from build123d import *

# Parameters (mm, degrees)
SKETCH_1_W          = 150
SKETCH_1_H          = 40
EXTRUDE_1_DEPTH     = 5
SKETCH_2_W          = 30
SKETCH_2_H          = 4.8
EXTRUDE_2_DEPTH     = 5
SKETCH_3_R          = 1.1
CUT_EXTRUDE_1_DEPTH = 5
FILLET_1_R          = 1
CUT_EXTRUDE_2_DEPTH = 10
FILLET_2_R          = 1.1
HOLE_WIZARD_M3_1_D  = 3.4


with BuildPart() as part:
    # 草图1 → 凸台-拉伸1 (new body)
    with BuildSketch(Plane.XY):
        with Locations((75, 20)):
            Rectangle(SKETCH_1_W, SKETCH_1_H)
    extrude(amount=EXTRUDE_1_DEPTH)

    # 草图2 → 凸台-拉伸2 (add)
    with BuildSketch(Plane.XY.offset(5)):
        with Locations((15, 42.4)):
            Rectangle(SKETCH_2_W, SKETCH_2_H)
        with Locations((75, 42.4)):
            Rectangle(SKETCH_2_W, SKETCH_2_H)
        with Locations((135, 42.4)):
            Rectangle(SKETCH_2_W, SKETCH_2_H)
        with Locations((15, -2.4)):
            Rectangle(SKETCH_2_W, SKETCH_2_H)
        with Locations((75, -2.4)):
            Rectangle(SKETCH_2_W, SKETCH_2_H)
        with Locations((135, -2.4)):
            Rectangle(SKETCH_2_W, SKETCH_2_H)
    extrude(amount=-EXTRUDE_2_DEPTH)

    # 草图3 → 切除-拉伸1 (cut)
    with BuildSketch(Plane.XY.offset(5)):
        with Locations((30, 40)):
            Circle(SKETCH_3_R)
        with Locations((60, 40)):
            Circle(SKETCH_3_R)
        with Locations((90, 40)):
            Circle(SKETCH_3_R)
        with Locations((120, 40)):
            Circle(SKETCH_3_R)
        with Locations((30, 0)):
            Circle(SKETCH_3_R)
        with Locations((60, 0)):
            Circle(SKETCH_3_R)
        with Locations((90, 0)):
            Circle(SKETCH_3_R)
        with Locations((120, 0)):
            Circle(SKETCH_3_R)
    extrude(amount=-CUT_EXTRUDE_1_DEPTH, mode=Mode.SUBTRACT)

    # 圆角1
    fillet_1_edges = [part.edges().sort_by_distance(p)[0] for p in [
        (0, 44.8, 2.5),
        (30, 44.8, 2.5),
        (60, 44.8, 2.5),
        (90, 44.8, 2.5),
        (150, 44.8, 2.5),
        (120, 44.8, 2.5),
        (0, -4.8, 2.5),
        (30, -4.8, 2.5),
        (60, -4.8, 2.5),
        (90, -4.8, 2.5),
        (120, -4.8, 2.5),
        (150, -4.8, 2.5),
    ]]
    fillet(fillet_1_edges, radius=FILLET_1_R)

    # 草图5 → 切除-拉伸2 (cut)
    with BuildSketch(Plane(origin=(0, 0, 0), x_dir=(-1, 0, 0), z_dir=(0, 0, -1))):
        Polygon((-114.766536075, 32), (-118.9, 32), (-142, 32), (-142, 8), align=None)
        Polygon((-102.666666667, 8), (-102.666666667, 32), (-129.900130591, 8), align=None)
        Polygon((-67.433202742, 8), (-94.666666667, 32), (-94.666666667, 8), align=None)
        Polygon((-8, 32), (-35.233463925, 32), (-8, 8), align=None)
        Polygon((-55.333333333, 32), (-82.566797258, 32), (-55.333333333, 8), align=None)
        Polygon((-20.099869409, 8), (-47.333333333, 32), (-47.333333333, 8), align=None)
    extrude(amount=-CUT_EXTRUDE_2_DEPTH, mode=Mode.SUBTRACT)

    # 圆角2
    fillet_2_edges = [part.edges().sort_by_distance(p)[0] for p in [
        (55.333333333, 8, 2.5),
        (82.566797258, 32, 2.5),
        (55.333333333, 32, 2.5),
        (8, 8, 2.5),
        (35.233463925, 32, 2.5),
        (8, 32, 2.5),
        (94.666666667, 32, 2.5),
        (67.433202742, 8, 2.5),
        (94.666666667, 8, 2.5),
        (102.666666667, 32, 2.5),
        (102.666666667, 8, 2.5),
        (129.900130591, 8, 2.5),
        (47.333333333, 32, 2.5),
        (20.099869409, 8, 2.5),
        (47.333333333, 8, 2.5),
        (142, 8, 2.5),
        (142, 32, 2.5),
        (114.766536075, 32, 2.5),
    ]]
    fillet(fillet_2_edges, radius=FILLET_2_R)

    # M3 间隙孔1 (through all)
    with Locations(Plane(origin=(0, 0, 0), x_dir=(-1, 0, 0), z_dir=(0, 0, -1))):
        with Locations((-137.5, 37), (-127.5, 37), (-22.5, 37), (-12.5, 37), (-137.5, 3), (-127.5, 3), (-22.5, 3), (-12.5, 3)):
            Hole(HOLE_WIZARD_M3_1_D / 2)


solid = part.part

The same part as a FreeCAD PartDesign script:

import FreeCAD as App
import Part
import Sketcher

V = App.Vector
Q = App.Units.Quantity


def edges_at(feature, points):
    """Names of the edges that pass closest to the given points."""
    edges = feature.Shape.Edges
    near = lambda p: min(range(len(edges)), key=lambda i: edges[i].distToShape(Part.Vertex(*p))[0])
    return sorted({f"Edge{near(p) + 1}" for p in points})

doc = App.newDocument("Part")
params = doc.addObject("Spreadsheet::Sheet", "Params")
for row, (alias, value) in enumerate([
    ("sketch1_width", "150 mm"),
    ("sketch1_height", "40 mm"),
    ("pad1_length", "5 mm"),
    ("sketch2_width", "30 mm"),
    ("sketch2_height", "4.8 mm"),
    ("pad2_length", "5 mm"),
    ("sketch3_diameter", "2.2 mm"),
    ("pocket1_length", "5 mm"),
    ("fillet_radius", "1 mm"),
    ("sketch4_height", "24 mm"),
    ("pocket2_length", "10 mm"),
    ("fillet2_radius", "1.1 mm"),
    ("sketch5_diameter", "3.4 mm"),
    ("hole_diameter", "3.4 mm"),
], start=1):
    params.set(f"A{row}", alias)
    params.set(f"B{row}", "=" + value)
    params.setAlias(f"B{row}", alias)

body = doc.addObject("PartDesign::Body", "Body")

# Sketch on XY plane
sketch1 = doc.addObject("Sketcher::SketchObject", "Sketch")
body.addObject(sketch1)
sketch1.AttachmentSupport = (doc.XY_Plane, [""])
sketch1.MapMode = "FlatFace"
sketch1.addGeometry([
    Part.LineSegment(V(0, 40, 0), V(0, 0, 0)),
    Part.LineSegment(V(0, 0, 0), V(150, 0, 0)),
    Part.LineSegment(V(150, 0, 0), V(150, 40, 0)),
    Part.LineSegment(V(150, 40, 0), V(0, 40, 0)),
], False)
sketch1.addConstraint([
    Sketcher.Constraint("Coincident", 0, 2, 1, 1),
    Sketcher.Constraint("Coincident", 1, 2, 2, 1),
    Sketcher.Constraint("Coincident", 2, 2, 3, 1),
    Sketcher.Constraint("Coincident", 3, 2, 0, 1),
    Sketcher.Constraint("Vertical", 0),
    Sketcher.Constraint("Horizontal", 1),
    Sketcher.Constraint("Vertical", 2),
    Sketcher.Constraint("Horizontal", 3),
    Sketcher.Constraint("Coincident", 0, 2, -1, 1),
    Sketcher.Constraint("DistanceX", 1, 1, 1, 2, Q("150 mm")),
    Sketcher.Constraint("DistanceY", 0, 2, 0, 1, Q("40 mm")),
])
sketch1.setExpression("Constraints[9]", "Params.sketch1_width")
sketch1.setExpression("Constraints[10]", "Params.sketch1_height")
pad1 = doc.addObject("PartDesign::Pad", "Pad")
body.addObject(pad1)
pad1.Profile = sketch1
pad1.setExpression("Length", "Params.pad1_length")

# Sketch on XY plane
sketch2 = doc.addObject("Sketcher::SketchObject", "Sketch001")
body.addObject(sketch2)
sketch2.AttachmentSupport = (doc.XY_Plane, [""])
sketch2.MapMode = "FlatFace"
sketch2.AttachmentOffset = App.Placement(V(0, 0, 5), App.Rotation())
sketch2.addGeometry([
    Part.LineSegment(V(0, 44.8, 0), V(0, 40, 0)),  # 0
    Part.LineSegment(V(0, 40, 0), V(30, 40, 0)),  # 1
    Part.LineSegment(V(30, 40, 0), V(30, 44.8, 0)),  # 2
    Part.LineSegment(V(30, 44.8, 0), V(0, 44.8, 0)),  # 3
    Part.LineSegment(V(60, 44.8, 0), V(60, 40, 0)),  # 4
    Part.LineSegment(V(60, 40, 0), V(90, 40, 0)),  # 5
    Part.LineSegment(V(90, 40, 0), V(90, 44.8, 0)),  # 6
    Part.LineSegment(V(90, 44.8, 0), V(60, 44.8, 0)),  # 7
    Part.LineSegment(V(120, 44.8, 0), V(120, 40, 0)),  # 8
    Part.LineSegment(V(120, 40, 0), V(150, 40, 0)),  # 9
    Part.LineSegment(V(150, 40, 0), V(150, 44.8, 0)),  # 10
    Part.LineSegment(V(150, 44.8, 0), V(120, 44.8, 0)),  # 11
    Part.LineSegment(V(0, 0, 0), V(0, -4.8, 0)),  # 12
    Part.LineSegment(V(0, -4.8, 0), V(30, -4.8, 0)),  # 13
    Part.LineSegment(V(30, -4.8, 0), V(30, 0, 0)),  # 14
    Part.LineSegment(V(30, 0, 0), V(0, 0, 0)),  # 15
    Part.LineSegment(V(60, 0, 0), V(60, -4.8, 0)),  # 16
    Part.LineSegment(V(60, -4.8, 0), V(90, -4.8, 0)),  # 17
    Part.LineSegment(V(90, -4.8, 0), V(90, 0, 0)),  # 18
    Part.LineSegment(V(90, 0, 0), V(60, 0, 0)),  # 19
    Part.LineSegment(V(120, 0, 0), V(120, -4.8, 0)),  # 20
    Part.LineSegment(V(120, -4.8, 0), V(150, -4.8, 0)),  # 21
    Part.LineSegment(V(150, -4.8, 0), V(150, 0, 0)),  # 22
    Part.LineSegment(V(150, 0, 0), V(120, 0, 0)),  # 23
], False)
sketch2.addConstraint([
    Sketcher.Constraint("Coincident", 0, 2, 1, 1),
    Sketcher.Constraint("Coincident", 1, 2, 2, 1),
    Sketcher.Constraint("Coincident", 2, 2, 3, 1),
    Sketcher.Constraint("Coincident", 3, 2, 0, 1),
    Sketcher.Constraint("Coincident", 4, 2, 5, 1),
    Sketcher.Constraint("Coincident", 5, 2, 6, 1),
    Sketcher.Constraint("Coincident", 6, 2, 7, 1),
    Sketcher.Constraint("Coincident", 7, 2, 4, 1),
    Sketcher.Constraint("Coincident", 8, 2, 9, 1),
    Sketcher.Constraint("Coincident", 9, 2, 10, 1),
    Sketcher.Constraint("Coincident", 10, 2, 11, 1),
    Sketcher.Constraint("Coincident", 11, 2, 8, 1),
    Sketcher.Constraint("Coincident", 12, 2, 13, 1),
    Sketcher.Constraint("Coincident", 13, 2, 14, 1),
    Sketcher.Constraint("Coincident", 14, 2, 15, 1),
    Sketcher.Constraint("Coincident", 15, 2, 12, 1),
    Sketcher.Constraint("Coincident", 16, 2, 17, 1),
    Sketcher.Constraint("Coincident", 17, 2, 18, 1),
    Sketcher.Constraint("Coincident", 18, 2, 19, 1),
    Sketcher.Constraint("Coincident", 19, 2, 16, 1),
    Sketcher.Constraint("Coincident", 20, 2, 21, 1),
    Sketcher.Constraint("Coincident", 21, 2, 22, 1),
    Sketcher.Constraint("Coincident", 22, 2, 23, 1),
    Sketcher.Constraint("Coincident", 23, 2, 20, 1),
    Sketcher.Constraint("Vertical", 0),
    Sketcher.Constraint("Horizontal", 1),
    Sketcher.Constraint("Vertical", 2),
    Sketcher.Constraint("Horizontal", 3),
    Sketcher.Constraint("Vertical", 4),
    Sketcher.Constraint("Horizontal", 5),
    Sketcher.Constraint("Vertical", 6),
    Sketcher.Constraint("Horizontal", 7),
    Sketcher.Constraint("Vertical", 8),
    Sketcher.Constraint("Horizontal", 9),
    Sketcher.Constraint("Vertical", 10),
    Sketcher.Constraint("Horizontal", 11),
    Sketcher.Constraint("Vertical", 12),
    Sketcher.Constraint("Horizontal", 13),
    Sketcher.Constraint("Vertical", 14),
    Sketcher.Constraint("Horizontal", 15),
    Sketcher.Constraint("Vertical", 16),
    Sketcher.Constraint("Horizontal", 17),
    Sketcher.Constraint("Vertical", 18),
    Sketcher.Constraint("Horizontal", 19),
    Sketcher.Constraint("Vertical", 20),
    Sketcher.Constraint("Horizontal", 21),
    Sketcher.Constraint("Vertical", 22),
    Sketcher.Constraint("Horizontal", 23),
    Sketcher.Constraint("Coincident", 15, 2, -1, 1),
    Sketcher.Constraint("PointOnObject", 0, 2, -2),
    Sketcher.Constraint("PointOnObject", 18, 2, -1),
    Sketcher.Constraint("PointOnObject", 22, 2, -1),
    Sketcher.Constraint("Horizontal", 1, 2, 4, 2),
    Sketcher.Constraint("Horizontal", 3, 2, 6, 2),
    Sketcher.Constraint("Horizontal", 5, 2, 8, 2),
    Sketcher.Constraint("Horizontal", 7, 2, 10, 2),
    Sketcher.Constraint("Horizontal", 13, 2, 16, 2),
    Sketcher.Constraint("Horizontal", 17, 2, 20, 2),
    Sketcher.Constraint("Vertical", 2, 2, 13, 2),
    Sketcher.Constraint("Vertical", 7, 2, 16, 2),
    Sketcher.Constraint("Vertical", 6, 2, 17, 2),
    Sketcher.Constraint("Vertical", 11, 2, 20, 2),
    Sketcher.Constraint("Vertical", 10, 2, 21, 2),
    Sketcher.Constraint("Equal", 3, 5),
    Sketcher.Constraint("Equal", 7, 9),
    Sketcher.Constraint("Equal", 10, 12),
    Sketcher.Constraint("DistanceX", 1, 1, 1, 2, Q("30 mm")),
    Sketcher.Constraint("DistanceY", 0, 2, 0, 1, Q("4.8 mm")),
    Sketcher.Constraint("DistanceY", -1, 1, 0, 2, Q("40 mm")),
    Sketcher.Constraint("DistanceX", -1, 1, 4, 2, Q("60 mm")),
    Sketcher.Constraint("DistanceX", -1, 1, 8, 2, Q("120 mm")),
])
sketch2.setExpression("Constraints[66]", "Params.sketch2_width")
sketch2.setExpression("Constraints[67]", "Params.sketch2_height")
pad2 = doc.addObject("PartDesign::Pad", "Pad001")
body.addObject(pad2)
pad2.Profile = sketch2
pad2.setExpression("Length", "Params.pad2_length")
pad2.Reversed = True

# Sketch on XY plane
sketch3 = doc.addObject("Sketcher::SketchObject", "Sketch002")
body.addObject(sketch3)
sketch3.AttachmentSupport = (doc.XY_Plane, [""])
sketch3.MapMode = "FlatFace"
sketch3.AttachmentOffset = App.Placement(V(0, 0, 5), App.Rotation())
sketch3.addGeometry([
    Part.Circle(V(30, 40, 0), V(0, 0, 1), 1.1),  # 0
    Part.Circle(V(60, 40, 0), V(0, 0, 1), 1.1),  # 1
    Part.Circle(V(90, 40, 0), V(0, 0, 1), 1.1),  # 2
    Part.Circle(V(120, 40, 0), V(0, 0, 1), 1.1),  # 3
    Part.Circle(V(30, 0, 0), V(0, 0, 1), 1.1),  # 4
    Part.Circle(V(60, 0, 0), V(0, 0, 1), 1.1),  # 5
    Part.Circle(V(90, 0, 0), V(0, 0, 1), 1.1),  # 6
    Part.Circle(V(120, 0, 0), V(0, 0, 1), 1.1),  # 7
], False)
sketch3.addConstraint([
    Sketcher.Constraint("Equal", 0, 1),
    Sketcher.Constraint("Equal", 1, 2),
    Sketcher.Constraint("Equal", 2, 3),
    Sketcher.Constraint("Equal", 3, 4),
    Sketcher.Constraint("Equal", 4, 5),
    Sketcher.Constraint("Equal", 5, 6),
    Sketcher.Constraint("Equal", 6, 7),
    Sketcher.Constraint("PointOnObject", 4, 3, -1),
    Sketcher.Constraint("PointOnObject", 5, 3, -1),
    Sketcher.Constraint("PointOnObject", 6, 3, -1),
    Sketcher.Constraint("PointOnObject", 7, 3, -1),
    Sketcher.Constraint("Horizontal", 0, 3, 1, 3),
    Sketcher.Constraint("Horizontal", 1, 3, 2, 3),
    Sketcher.Constraint("Horizontal", 2, 3, 3, 3),
    Sketcher.Constraint("Vertical", 0, 3, 4, 3),
    Sketcher.Constraint("Vertical", 1, 3, 5, 3),
    Sketcher.Constraint("Vertical", 2, 3, 6, 3),
    Sketcher.Constraint("Vertical", 3, 3, 7, 3),
    Sketcher.Constraint("Diameter", 0, Q("2.2 mm")),
    Sketcher.Constraint("DistanceX", -1, 1, 0, 3, Q("30 mm")),
    Sketcher.Constraint("DistanceY", -1, 1, 0, 3, Q("40 mm")),
    Sketcher.Constraint("DistanceX", -1, 1, 1, 3, Q("60 mm")),
    Sketcher.Constraint("DistanceX", -1, 1, 2, 3, Q("90 mm")),
    Sketcher.Constraint("DistanceX", -1, 1, 3, 3, Q("120 mm")),
])
sketch3.setExpression("Constraints[18]", "Params.sketch3_diameter")
pocket1 = doc.addObject("PartDesign::Pocket", "Pocket")
body.addObject(pocket1)
pocket1.Profile = sketch3
pocket1.setExpression("Length", "Params.pocket1_length")
doc.recompute()

fillet = doc.addObject("PartDesign::Fillet", "Fillet")
body.addObject(fillet)
fillet.Base = (pocket1, edges_at(pocket1, [
    (0, 44.8, 2.5),
    (30, 44.8, 2.5),
    (60, 44.8, 2.5),
    (90, 44.8, 2.5),
    (150, 44.8, 2.5),
    (120, 44.8, 2.5),
    (0, -4.8, 2.5),
    (30, -4.8, 2.5),
    (60, -4.8, 2.5),
    (90, -4.8, 2.5),
    (120, -4.8, 2.5),
    (150, -4.8, 2.5),
]))
fillet.setExpression("Radius", "Params.fillet_radius")

# Sketch on XY plane
sketch4 = doc.addObject("Sketcher::SketchObject", "Sketch003")
body.addObject(sketch4)
sketch4.AttachmentSupport = (doc.XY_Plane, [""])
sketch4.MapMode = "FlatFace"
sketch4.addGeometry([
    Part.LineSegment(V(114.766536, 32, 0), V(142, 32, 0)),  # 0
    Part.LineSegment(V(142, 32, 0), V(142, 8, 0)),  # 1
    Part.LineSegment(V(142, 8, 0), V(114.766536, 32, 0)),  # 2
    Part.LineSegment(V(102.666667, 8, 0), V(102.666667, 32, 0)),  # 3
    Part.LineSegment(V(102.666667, 32, 0), V(129.900131, 8, 0)),  # 4
    Part.LineSegment(V(129.900131, 8, 0), V(102.666667, 8, 0)),  # 5
    Part.LineSegment(V(67.433203, 8, 0), V(94.666667, 32, 0)),  # 6
    Part.LineSegment(V(94.666667, 32, 0), V(94.666667, 8, 0)),  # 7
    Part.LineSegment(V(94.666667, 8, 0), V(67.433203, 8, 0)),  # 8
    Part.LineSegment(V(8, 32, 0), V(35.233464, 32, 0)),  # 9
    Part.LineSegment(V(35.233464, 32, 0), V(8, 8, 0)),  # 10
    Part.LineSegment(V(8, 8, 0), V(8, 32, 0)),  # 11
    Part.LineSegment(V(55.333333, 32, 0), V(82.566797, 32, 0)),  # 12
    Part.LineSegment(V(82.566797, 32, 0), V(55.333333, 8, 0)),  # 13
    Part.LineSegment(V(55.333333, 8, 0), V(55.333333, 32, 0)),  # 14
    Part.LineSegment(V(20.099869, 8, 0), V(47.333333, 32, 0)),  # 15
    Part.LineSegment(V(47.333333, 32, 0), V(47.333333, 8, 0)),  # 16
    Part.LineSegment(V(47.333333, 8, 0), V(20.099869, 8, 0)),  # 17
], False)
sketch4.addConstraint([
    Sketcher.Constraint("Coincident", 0, 2, 1, 1),
    Sketcher.Constraint("Coincident", 1, 2, 2, 1),
    Sketcher.Constraint("Coincident", 2, 2, 0, 1),
    Sketcher.Constraint("Coincident", 3, 2, 4, 1),
    Sketcher.Constraint("Coincident", 4, 2, 5, 1),
    Sketcher.Constraint("Coincident", 5, 2, 3, 1),
    Sketcher.Constraint("Coincident", 6, 2, 7, 1),
    Sketcher.Constraint("Coincident", 7, 2, 8, 1),
    Sketcher.Constraint("Coincident", 8, 2, 6, 1),
    Sketcher.Constraint("Coincident", 9, 2, 10, 1),
    Sketcher.Constraint("Coincident", 10, 2, 11, 1),
    Sketcher.Constraint("Coincident", 11, 2, 9, 1),
    Sketcher.Constraint("Coincident", 12, 2, 13, 1),
    Sketcher.Constraint("Coincident", 13, 2, 14, 1),
    Sketcher.Constraint("Coincident", 14, 2, 12, 1),
    Sketcher.Constraint("Coincident", 15, 2, 16, 1),
    Sketcher.Constraint("Coincident", 16, 2, 17, 1),
    Sketcher.Constraint("Coincident", 17, 2, 15, 1),
    Sketcher.Constraint("Horizontal", 0),
    Sketcher.Constraint("Vertical", 1),
    Sketcher.Constraint("Vertical", 3),
    Sketcher.Constraint("Horizontal", 5),
    Sketcher.Constraint("Vertical", 7),
    Sketcher.Constraint("Horizontal", 8),
    Sketcher.Constraint("Horizontal", 9),
    Sketcher.Constraint("Vertical", 11),
    Sketcher.Constraint("Horizontal", 12),
    Sketcher.Constraint("Vertical", 14),
    Sketcher.Constraint("Vertical", 16),
    Sketcher.Constraint("Horizontal", 17),
    Sketcher.Constraint("Parallel", 2, 4),
    Sketcher.Constraint("Parallel", 6, 10),
    Sketcher.Constraint("Parallel", 10, 13),
    Sketcher.Constraint("Parallel", 13, 15),
    Sketcher.Constraint("Horizontal", 2, 2, 3, 2),
    Sketcher.Constraint("Horizontal", 1, 2, 4, 2),
    Sketcher.Constraint("Horizontal", 3, 2, 6, 2),
    Sketcher.Constraint("Horizontal", 5, 2, 7, 2),
    Sketcher.Constraint("Horizontal", 6, 2, 9, 2),
    Sketcher.Constraint("Horizontal", 8, 2, 10, 2),
    Sketcher.Constraint("Horizontal", 11, 2, 12, 2),
    Sketcher.Constraint("Horizontal", 10, 2, 13, 2),
    Sketcher.Constraint("Horizontal", 14, 2, 15, 2),
    Sketcher.Constraint("Horizontal", 13, 2, 16, 2),
    Sketcher.Constraint("Equal", 5, 8),
    Sketcher.Constraint("DistanceY", 1, 2, 1, 1, Q("24 mm")),
    Sketcher.Constraint("DistanceX", -1, 1, 0, 2, Q("142 mm")),
    Sketcher.Constraint("DistanceY", -1, 1, 0, 2, Q("32 mm")),
    Sketcher.Constraint("DistanceX", -1, 1, 10, 2, Q("8 mm")),
    Sketcher.Constraint("DistanceX", 6, 2, 3, 2, Q("8 mm")),
    Sketcher.Constraint("DistanceX", 15, 2, 14, 2, Q("8 mm")),
    Sketcher.Constraint("Distance", 2, Q("36.299608 mm")),
    Sketcher.Constraint("DistanceX", -1, 1, 4, 2, Q("129.900131 mm")),
    Sketcher.Constraint("DistanceX", -1, 1, 17, 2, Q("20.099869 mm")),
])
sketch4.setExpression("Constraints[45]", "Params.sketch4_height")
pocket2 = doc.addObject("PartDesign::Pocket", "Pocket001")
body.addObject(pocket2)
pocket2.Profile = sketch4
pocket2.setExpression("Length", "Params.pocket2_length")
pocket2.Reversed = True
doc.recompute()

fillet2 = doc.addObject("PartDesign::Fillet", "Fillet001")
body.addObject(fillet2)
fillet2.Base = (pocket2, edges_at(pocket2, [
    (55.333, 8, 2.5),
    (82.567, 32, 2.5),
    (55.333, 32, 2.5),
    (8, 8, 2.5),
    (35.233, 32, 2.5),
    (8, 32, 2.5),
    (94.667, 32, 2.5),
    (67.433, 8, 2.5),
    (94.667, 8, 2.5),
    (102.667, 32, 2.5),
    (102.667, 8, 2.5),
    (129.9, 8, 2.5),
    (47.333, 32, 2.5),
    (20.1, 8, 2.5),
    (47.333, 8, 2.5),
    (142, 8, 2.5),
    (142, 32, 2.5),
    (114.767, 32, 2.5),
]))
fillet2.setExpression("Radius", "Params.fillet2_radius")

# Sketch on XY plane
sketch5 = doc.addObject("Sketcher::SketchObject", "Sketch004")
body.addObject(sketch5)
sketch5.AttachmentSupport = (doc.XY_Plane, [""])
sketch5.MapMode = "FlatFace"
sketch5.addGeometry([
    Part.Circle(V(137.5, 37, 0), V(0, 0, 1), 1.7),  # 0
    Part.Circle(V(127.5, 37, 0), V(0, 0, 1), 1.7),  # 1
    Part.Circle(V(22.5, 37, 0), V(0, 0, 1), 1.7),  # 2
    Part.Circle(V(12.5, 37, 0), V(0, 0, 1), 1.7),  # 3
    Part.Circle(V(137.5, 3, 0), V(0, 0, 1), 1.7),  # 4
    Part.Circle(V(127.5, 3, 0), V(0, 0, 1), 1.7),  # 5
    Part.Circle(V(22.5, 3, 0), V(0, 0, 1), 1.7),  # 6
    Part.Circle(V(12.5, 3, 0), V(0, 0, 1), 1.7),  # 7
], False)
sketch5.addConstraint([
    Sketcher.Constraint("Equal", 0, 1),
    Sketcher.Constraint("Equal", 1, 2),
    Sketcher.Constraint("Equal", 2, 3),
    Sketcher.Constraint("Equal", 3, 4),
    Sketcher.Constraint("Equal", 4, 5),
    Sketcher.Constraint("Equal", 5, 6),
    Sketcher.Constraint("Equal", 6, 7),
    Sketcher.Constraint("Horizontal", 0, 3, 1, 3),
    Sketcher.Constraint("Horizontal", 1, 3, 2, 3),
    Sketcher.Constraint("Horizontal", 2, 3, 3, 3),
    Sketcher.Constraint("Horizontal", 4, 3, 5, 3),
    Sketcher.Constraint("Horizontal", 5, 3, 6, 3),
    Sketcher.Constraint("Horizontal", 6, 3, 7, 3),
    Sketcher.Constraint("Vertical", 0, 3, 4, 3),
    Sketcher.Constraint("Vertical", 1, 3, 5, 3),
    Sketcher.Constraint("Vertical", 2, 3, 6, 3),
    Sketcher.Constraint("Vertical", 3, 3, 7, 3),
    Sketcher.Constraint("Diameter", 0, Q("3.4 mm")),
    Sketcher.Constraint("DistanceY", -1, 1, 0, 3, Q("37 mm")),
    Sketcher.Constraint("DistanceY", -1, 1, 4, 3, Q("3 mm")),
    Sketcher.Constraint("DistanceX", 1, 3, 0, 3, Q("10 mm")),
    Sketcher.Constraint("DistanceX", 2, 3, 1, 3, Q("105 mm")),
    Sketcher.Constraint("DistanceX", 3, 3, 2, 3, Q("10 mm")),
    Sketcher.Constraint("DistanceX", -1, 1, 0, 3, Q("137.5 mm")),
])
sketch5.setExpression("Constraints[17]", "Params.sketch5_diameter")
doc.recompute()
hole = doc.addObject("PartDesign::Hole", "Hole")
body.addObject(hole)
hole.Profile = sketch5
hole.ThreadType = "None"
hole.setExpression("Diameter", "Params.hole_diameter")
hole.DepthType = "ThroughAll"
hole.Reversed = True

doc.recompute()
